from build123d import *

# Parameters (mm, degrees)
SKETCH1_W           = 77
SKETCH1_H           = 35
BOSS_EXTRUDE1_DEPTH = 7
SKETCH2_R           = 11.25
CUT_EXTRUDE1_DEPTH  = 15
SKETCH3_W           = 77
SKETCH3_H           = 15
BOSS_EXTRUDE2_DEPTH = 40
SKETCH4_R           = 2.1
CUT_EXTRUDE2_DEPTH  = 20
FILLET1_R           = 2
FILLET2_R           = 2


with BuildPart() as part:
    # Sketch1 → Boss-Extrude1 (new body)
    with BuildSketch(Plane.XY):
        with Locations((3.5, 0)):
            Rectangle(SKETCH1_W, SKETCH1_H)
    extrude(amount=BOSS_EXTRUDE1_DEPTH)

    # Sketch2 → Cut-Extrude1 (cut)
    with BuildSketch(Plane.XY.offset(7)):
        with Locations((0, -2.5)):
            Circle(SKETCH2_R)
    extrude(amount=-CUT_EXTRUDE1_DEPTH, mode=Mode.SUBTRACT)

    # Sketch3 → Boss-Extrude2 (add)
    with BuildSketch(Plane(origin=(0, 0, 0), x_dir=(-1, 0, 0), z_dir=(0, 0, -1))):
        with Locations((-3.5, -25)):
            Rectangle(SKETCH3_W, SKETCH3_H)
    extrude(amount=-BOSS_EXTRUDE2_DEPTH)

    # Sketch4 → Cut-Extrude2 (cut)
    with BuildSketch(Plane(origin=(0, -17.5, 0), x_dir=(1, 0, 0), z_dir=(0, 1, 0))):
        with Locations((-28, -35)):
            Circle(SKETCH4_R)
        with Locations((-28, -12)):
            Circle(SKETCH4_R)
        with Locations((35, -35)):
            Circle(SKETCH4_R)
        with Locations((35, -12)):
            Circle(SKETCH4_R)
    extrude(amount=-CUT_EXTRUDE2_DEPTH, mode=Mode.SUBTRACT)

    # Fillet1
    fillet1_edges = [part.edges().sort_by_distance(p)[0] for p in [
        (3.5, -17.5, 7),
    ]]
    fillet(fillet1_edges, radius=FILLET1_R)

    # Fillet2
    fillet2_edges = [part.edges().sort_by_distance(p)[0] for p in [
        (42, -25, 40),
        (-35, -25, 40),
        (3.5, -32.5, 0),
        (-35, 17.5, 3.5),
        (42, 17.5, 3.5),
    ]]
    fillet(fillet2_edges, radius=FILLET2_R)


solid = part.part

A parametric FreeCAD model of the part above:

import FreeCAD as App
import Part
import Sketcher

V = App.Vector
Q = App.Units.Quantity


def edges_at(feature, points):
    """Names of the edges that pass closest to the given points."""
    edges = feature.Shape.Edges
    near = lambda p: min(range(len(edges)), key=lambda i: edges[i].distToShape(Part.Vertex(*p))[0])
    return sorted({f"Edge{near(p) + 1}" for p in points})

doc = App.newDocument("Part")
body = doc.addObject("PartDesign::Body", "Body")

# Sketch on XY plane
sketch1 = doc.addObject("Sketcher::SketchObject", "Sketch")
body.addObject(sketch1)
sketch1.AttachmentSupport = (doc.XY_Plane, [""])
sketch1.MapMode = "FlatFace"
sketch1.addGeometry(Part.LineSegment(V(-35, 18, 0), V(-35, -18, 0)), False)
sketch1.addGeometry(Part.LineSegment(V(-35, -18, 0), V(42, -18, 0)), False)
sketch1.addGeometry(Part.LineSegment(V(42, -18, 0), V(42, 18, 0)), False)
sketch1.addGeometry(Part.LineSegment(V(42, 18, 0), V(-35, 18, 0)), False)
sketch1.addConstraint(Sketcher.Constraint("Coincident", 0, 2, 1, 1))
sketch1.addConstraint(Sketcher.Constraint("Coincident", 1, 2, 2, 1))
sketch1.addConstraint(Sketcher.Constraint("Coincident", 2, 2, 3, 1))
sketch1.addConstraint(Sketcher.Constraint("Coincident", 3, 2, 0, 1))
sketch1.addConstraint(Sketcher.Constraint("Vertical", 0))
sketch1.addConstraint(Sketcher.Constraint("Horizontal", 1))
sketch1.addConstraint(Sketcher.Constraint("Vertical", 2))
sketch1.addConstraint(Sketcher.Constraint("Horizontal", 3))
sketch1.addConstraint(Sketcher.Constraint("DistanceX", 1, 1, 1, 2, Q("77 mm")))
sketch1.addConstraint(Sketcher.Constraint("DistanceY", 0, 2, 0, 1, Q("35 mm")))
sketch1.addConstraint(Sketcher.Constraint("DistanceX", 0, 2, -1, 1, Q("35 mm")))
sketch1.addConstraint(Sketcher.Constraint("DistanceY", 0, 2, -1, 1, Q("17.5 mm")))
pad1 = doc.addObject("PartDesign::Pad", "Pad")
body.addObject(pad1)
pad1.Profile = sketch1
pad1.Length = 7

# Sketch on XY plane
sketch2 = doc.addObject("Sketcher::SketchObject", "Sketch001")
body.addObject(sketch2)
sketch2.AttachmentSupport = (doc.XY_Plane, [""])
sketch2.MapMode = "FlatFace"
sketch2.AttachmentOffset = App.Placement(V(0, 0, 7), App.Rotation())
sketch2.addGeometry(Part.Circle(V(0, -2, 0), V(0, 0, 1), 11), False)
sketch2.addConstraint(Sketcher.Constraint("PointOnObject", 0, 3, -2))
sketch2.addConstraint(Sketcher.Constraint("Diameter", 0, Q("22.5 mm")))
sketch2.addConstraint(Sketcher.Constraint("DistanceY", 0, 3, -1, 1, Q("2.5 mm")))
pocket1 = doc.addObject("PartDesign::Pocket", "Pocket")
body.addObject(pocket1)
pocket1.Profile = sketch2
pocket1.Length = 15

# Sketch on XY plane
sketch3 = doc.addObject("Sketcher::SketchObject", "Sketch002")
body.addObject(sketch3)
sketch3.AttachmentSupport = (doc.XY_Plane, [""])
sketch3.MapMode = "FlatFace"
sketch3.addGeometry(Part.LineSegment(V(42, -18, 0), V(42, -32, 0)), False)
sketch3.addGeometry(Part.LineSegment(V(42, -32, 0), V(-35, -32, 0)), False)
sketch3.addGeometry(Part.LineSegment(V(-35, -32, 0), V(-35, -18, 0)), False)
sketch3.addGeometry(Part.LineSegment(V(-35, -18, 0), V(42, -18, 0)), False)
sketch3.addConstraint(Sketcher.Constraint("Coincident", 0, 2, 1, 1))
sketch3.addConstraint(Sketcher.Constraint("Coincident", 1, 2, 2, 1))
sketch3.addConstraint(Sketcher.Constraint("Coincident", 2, 2, 3, 1))
sketch3.addConstraint(Sketcher.Constraint("Coincident", 3, 2, 0, 1))
sketch3.addConstraint(Sketcher.Constraint("Vertical", 0))
sketch3.addConstraint(Sketcher.Constraint("Horizontal", 1))
sketch3.addConstraint(Sketcher.Constraint("Vertical", 2))
sketch3.addConstraint(Sketcher.Constraint("Horizontal", 3))
sketch3.addConstraint(Sketcher.Constraint("DistanceX", 1, 2, 1, 1, Q("77 mm")))
sketch3.addConstraint(Sketcher.Constraint("DistanceY", 0, 2, 0, 1, Q("15 mm")))
sketch3.addConstraint(Sketcher.Constraint("DistanceX", -1, 1, 0, 2, Q("42 mm")))
sketch3.addConstraint(Sketcher.Constraint("DistanceY", 0, 2, -1, 1, Q("32.5 mm")))
pad2 = doc.addObject("PartDesign::Pad", "Pad001")
body.addObject(pad2)
pad2.Profile = sketch3
pad2.Length = 40

# Sketch on XZ plane
sketch4 = doc.addObject("Sketcher::SketchObject", "Sketch003")
body.addObject(sketch4)
sketch4.AttachmentSupport = (doc.XZ_Plane, [""])
sketch4.MapMode = "FlatFace"
sketch4.AttachmentOffset = App.Placement(V(0, 0, 17.5), App.Rotation())
sketch4.addGeometry(Part.Circle(V(-28, 35, 0), V(0, 0, 1), 2.1), False)
sketch4.addGeometry(Part.Circle(V(-28, 12, 0), V(0, 0, 1), 2.1), False)
sketch4.addGeometry(Part.Circle(V(35, 35, 0), V(0, 0, 1), 2.1), False)
sketch4.addGeometry(Part.Circle(V(35, 12, 0), V(0, 0, 1), 2.1), False)
sketch4.addConstraint(Sketcher.Constraint("Equal", 0, 1))
sketch4.addConstraint(Sketcher.Constraint("Equal", 1, 2))
sketch4.addConstraint(Sketcher.Constraint("Equal", 2, 3))
sketch4.addConstraint(Sketcher.Constraint("Horizontal", 0, 3, 2, 3))
sketch4.addConstraint(Sketcher.Constraint("Horizontal", 1, 3, 3, 3))
sketch4.addConstraint(Sketcher.Constraint("Vertical", 0, 3, 1, 3))
sketch4.addConstraint(Sketcher.Constraint("Vertical", 2, 3, 3, 3))
sketch4.addConstraint(Sketcher.Constraint("Diameter", 0, Q("4.2 mm")))
sketch4.addConstraint(Sketcher.Constraint("DistanceX", 0, 3, -1, 1, Q("28 mm")))
sketch4.addConstraint(Sketcher.Constraint("DistanceY", -1, 1, 0, 3, Q("35 mm")))
sketch4.addConstraint(Sketcher.Constraint("DistanceY", -1, 1, 1, 3, Q("12 mm")))
sketch4.addConstraint(Sketcher.Constraint("DistanceX", -1, 1, 2, 3, Q("35 mm")))
pocket2 = doc.addObject("PartDesign::Pocket", "Pocket001")
body.addObject(pocket2)
pocket2.Profile = sketch4
pocket2.Length = 20
pocket2.Reversed = True
doc.recompute()

fillet = doc.addObject("PartDesign::Fillet", "Fillet")
body.addObject(fillet)
fillet.Base = (pocket2, edges_at(pocket2, [(3.5, -17.5, 7)]))
fillet.Radius = 2
doc.recompute()

fillet2 = doc.addObject("PartDesign::Fillet", "Fillet001")
body.addObject(fillet2)
fillet2.Base = (fillet, edges_at(fillet, [
    (42, -25, 40),
    (-35, -25, 40),
    (3.5, -32.5, 0),
    (-35, 17.5, 3.5),
    (42, 17.5, 3.5),
]))
fillet2.Radius = 2

doc.recompute()
